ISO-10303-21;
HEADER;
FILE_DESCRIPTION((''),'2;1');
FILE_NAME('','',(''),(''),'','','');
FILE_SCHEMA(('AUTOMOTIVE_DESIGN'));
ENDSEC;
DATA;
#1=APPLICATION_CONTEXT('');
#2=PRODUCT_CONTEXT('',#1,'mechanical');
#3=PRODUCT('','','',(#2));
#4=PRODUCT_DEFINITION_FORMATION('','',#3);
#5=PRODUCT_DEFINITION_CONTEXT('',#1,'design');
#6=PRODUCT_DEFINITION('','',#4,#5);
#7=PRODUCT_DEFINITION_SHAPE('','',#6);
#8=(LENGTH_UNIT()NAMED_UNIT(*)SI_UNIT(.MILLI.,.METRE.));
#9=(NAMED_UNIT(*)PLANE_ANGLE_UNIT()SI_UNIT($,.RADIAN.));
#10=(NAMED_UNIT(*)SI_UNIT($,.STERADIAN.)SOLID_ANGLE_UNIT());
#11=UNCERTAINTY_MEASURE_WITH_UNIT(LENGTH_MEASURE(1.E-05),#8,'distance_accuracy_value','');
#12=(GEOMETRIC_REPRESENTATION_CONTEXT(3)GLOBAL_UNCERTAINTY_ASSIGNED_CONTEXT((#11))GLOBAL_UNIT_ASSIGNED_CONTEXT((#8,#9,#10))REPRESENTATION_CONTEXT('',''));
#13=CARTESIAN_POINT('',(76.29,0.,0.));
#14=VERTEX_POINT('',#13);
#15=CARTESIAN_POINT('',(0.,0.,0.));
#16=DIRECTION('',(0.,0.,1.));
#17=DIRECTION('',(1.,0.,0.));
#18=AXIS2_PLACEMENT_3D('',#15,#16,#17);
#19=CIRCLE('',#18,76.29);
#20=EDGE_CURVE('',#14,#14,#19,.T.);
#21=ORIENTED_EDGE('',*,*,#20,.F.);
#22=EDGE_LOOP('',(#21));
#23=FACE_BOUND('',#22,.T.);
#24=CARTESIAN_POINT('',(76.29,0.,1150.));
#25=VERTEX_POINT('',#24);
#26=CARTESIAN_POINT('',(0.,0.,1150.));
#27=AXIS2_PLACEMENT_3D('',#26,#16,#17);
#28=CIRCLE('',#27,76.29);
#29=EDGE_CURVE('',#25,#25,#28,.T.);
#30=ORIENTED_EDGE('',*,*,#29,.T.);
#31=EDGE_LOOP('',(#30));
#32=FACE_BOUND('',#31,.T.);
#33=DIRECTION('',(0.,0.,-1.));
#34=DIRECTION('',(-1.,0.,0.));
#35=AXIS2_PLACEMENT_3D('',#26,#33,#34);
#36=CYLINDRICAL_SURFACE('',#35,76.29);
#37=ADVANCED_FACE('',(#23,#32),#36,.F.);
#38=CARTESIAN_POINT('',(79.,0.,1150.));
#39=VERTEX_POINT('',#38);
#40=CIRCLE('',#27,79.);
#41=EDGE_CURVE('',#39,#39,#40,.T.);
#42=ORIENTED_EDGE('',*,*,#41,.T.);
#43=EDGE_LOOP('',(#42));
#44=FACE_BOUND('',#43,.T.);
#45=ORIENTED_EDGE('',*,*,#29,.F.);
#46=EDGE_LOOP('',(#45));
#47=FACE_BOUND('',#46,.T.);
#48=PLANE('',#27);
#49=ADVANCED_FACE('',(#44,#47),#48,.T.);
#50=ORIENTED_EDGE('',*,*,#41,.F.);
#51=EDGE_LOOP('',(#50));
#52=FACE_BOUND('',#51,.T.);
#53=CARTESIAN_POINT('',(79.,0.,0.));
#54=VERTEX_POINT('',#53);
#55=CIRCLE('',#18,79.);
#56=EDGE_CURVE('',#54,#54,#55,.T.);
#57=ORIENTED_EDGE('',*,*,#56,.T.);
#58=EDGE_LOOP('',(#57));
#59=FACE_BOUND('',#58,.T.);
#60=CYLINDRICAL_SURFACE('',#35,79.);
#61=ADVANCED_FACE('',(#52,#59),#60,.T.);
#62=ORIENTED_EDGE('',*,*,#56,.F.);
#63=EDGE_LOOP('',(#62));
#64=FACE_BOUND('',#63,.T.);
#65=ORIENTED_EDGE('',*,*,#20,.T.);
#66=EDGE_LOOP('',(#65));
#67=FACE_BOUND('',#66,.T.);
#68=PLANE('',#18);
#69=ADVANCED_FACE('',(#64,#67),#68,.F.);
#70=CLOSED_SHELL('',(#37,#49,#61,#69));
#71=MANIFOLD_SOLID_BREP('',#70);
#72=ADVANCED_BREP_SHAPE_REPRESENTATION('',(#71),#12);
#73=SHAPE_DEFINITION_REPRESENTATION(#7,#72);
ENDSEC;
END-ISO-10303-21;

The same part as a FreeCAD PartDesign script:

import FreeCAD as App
import Part
import Sketcher

doc = App.newDocument("Part")
body = doc.addObject("PartDesign::Body", "Body")

# Sketch on XY plane
sketch1 = body.newObject("Sketcher::SketchObject", "Sketch")
sketch1.AttachmentSupport = (doc.getObject("XY_Plane"), [""])
sketch1.MapMode = "FlatFace"
sketch1.addGeometry([
    Part.Circle(App.Vector(0, 0, 0), App.Vector(0, 0, 1), 79),
    Part.Circle(App.Vector(0, 0, 0), App.Vector(0, 0, 1), 76),
], False)
sketch1.addConstraint([
    Sketcher.Constraint("Coincident", 0, 3, -1, 1),
    Sketcher.Constraint("Coincident", 1, 3, -1, 1),
    Sketcher.Constraint("Diameter", 0, 158.0),
    Sketcher.Constraint("Diameter", 1, 152.58),
])
pad1 = body.newObject("PartDesign::Pad", "Pad")
pad1.Profile = sketch1
pad1.Length = 1150

doc.recompute()
